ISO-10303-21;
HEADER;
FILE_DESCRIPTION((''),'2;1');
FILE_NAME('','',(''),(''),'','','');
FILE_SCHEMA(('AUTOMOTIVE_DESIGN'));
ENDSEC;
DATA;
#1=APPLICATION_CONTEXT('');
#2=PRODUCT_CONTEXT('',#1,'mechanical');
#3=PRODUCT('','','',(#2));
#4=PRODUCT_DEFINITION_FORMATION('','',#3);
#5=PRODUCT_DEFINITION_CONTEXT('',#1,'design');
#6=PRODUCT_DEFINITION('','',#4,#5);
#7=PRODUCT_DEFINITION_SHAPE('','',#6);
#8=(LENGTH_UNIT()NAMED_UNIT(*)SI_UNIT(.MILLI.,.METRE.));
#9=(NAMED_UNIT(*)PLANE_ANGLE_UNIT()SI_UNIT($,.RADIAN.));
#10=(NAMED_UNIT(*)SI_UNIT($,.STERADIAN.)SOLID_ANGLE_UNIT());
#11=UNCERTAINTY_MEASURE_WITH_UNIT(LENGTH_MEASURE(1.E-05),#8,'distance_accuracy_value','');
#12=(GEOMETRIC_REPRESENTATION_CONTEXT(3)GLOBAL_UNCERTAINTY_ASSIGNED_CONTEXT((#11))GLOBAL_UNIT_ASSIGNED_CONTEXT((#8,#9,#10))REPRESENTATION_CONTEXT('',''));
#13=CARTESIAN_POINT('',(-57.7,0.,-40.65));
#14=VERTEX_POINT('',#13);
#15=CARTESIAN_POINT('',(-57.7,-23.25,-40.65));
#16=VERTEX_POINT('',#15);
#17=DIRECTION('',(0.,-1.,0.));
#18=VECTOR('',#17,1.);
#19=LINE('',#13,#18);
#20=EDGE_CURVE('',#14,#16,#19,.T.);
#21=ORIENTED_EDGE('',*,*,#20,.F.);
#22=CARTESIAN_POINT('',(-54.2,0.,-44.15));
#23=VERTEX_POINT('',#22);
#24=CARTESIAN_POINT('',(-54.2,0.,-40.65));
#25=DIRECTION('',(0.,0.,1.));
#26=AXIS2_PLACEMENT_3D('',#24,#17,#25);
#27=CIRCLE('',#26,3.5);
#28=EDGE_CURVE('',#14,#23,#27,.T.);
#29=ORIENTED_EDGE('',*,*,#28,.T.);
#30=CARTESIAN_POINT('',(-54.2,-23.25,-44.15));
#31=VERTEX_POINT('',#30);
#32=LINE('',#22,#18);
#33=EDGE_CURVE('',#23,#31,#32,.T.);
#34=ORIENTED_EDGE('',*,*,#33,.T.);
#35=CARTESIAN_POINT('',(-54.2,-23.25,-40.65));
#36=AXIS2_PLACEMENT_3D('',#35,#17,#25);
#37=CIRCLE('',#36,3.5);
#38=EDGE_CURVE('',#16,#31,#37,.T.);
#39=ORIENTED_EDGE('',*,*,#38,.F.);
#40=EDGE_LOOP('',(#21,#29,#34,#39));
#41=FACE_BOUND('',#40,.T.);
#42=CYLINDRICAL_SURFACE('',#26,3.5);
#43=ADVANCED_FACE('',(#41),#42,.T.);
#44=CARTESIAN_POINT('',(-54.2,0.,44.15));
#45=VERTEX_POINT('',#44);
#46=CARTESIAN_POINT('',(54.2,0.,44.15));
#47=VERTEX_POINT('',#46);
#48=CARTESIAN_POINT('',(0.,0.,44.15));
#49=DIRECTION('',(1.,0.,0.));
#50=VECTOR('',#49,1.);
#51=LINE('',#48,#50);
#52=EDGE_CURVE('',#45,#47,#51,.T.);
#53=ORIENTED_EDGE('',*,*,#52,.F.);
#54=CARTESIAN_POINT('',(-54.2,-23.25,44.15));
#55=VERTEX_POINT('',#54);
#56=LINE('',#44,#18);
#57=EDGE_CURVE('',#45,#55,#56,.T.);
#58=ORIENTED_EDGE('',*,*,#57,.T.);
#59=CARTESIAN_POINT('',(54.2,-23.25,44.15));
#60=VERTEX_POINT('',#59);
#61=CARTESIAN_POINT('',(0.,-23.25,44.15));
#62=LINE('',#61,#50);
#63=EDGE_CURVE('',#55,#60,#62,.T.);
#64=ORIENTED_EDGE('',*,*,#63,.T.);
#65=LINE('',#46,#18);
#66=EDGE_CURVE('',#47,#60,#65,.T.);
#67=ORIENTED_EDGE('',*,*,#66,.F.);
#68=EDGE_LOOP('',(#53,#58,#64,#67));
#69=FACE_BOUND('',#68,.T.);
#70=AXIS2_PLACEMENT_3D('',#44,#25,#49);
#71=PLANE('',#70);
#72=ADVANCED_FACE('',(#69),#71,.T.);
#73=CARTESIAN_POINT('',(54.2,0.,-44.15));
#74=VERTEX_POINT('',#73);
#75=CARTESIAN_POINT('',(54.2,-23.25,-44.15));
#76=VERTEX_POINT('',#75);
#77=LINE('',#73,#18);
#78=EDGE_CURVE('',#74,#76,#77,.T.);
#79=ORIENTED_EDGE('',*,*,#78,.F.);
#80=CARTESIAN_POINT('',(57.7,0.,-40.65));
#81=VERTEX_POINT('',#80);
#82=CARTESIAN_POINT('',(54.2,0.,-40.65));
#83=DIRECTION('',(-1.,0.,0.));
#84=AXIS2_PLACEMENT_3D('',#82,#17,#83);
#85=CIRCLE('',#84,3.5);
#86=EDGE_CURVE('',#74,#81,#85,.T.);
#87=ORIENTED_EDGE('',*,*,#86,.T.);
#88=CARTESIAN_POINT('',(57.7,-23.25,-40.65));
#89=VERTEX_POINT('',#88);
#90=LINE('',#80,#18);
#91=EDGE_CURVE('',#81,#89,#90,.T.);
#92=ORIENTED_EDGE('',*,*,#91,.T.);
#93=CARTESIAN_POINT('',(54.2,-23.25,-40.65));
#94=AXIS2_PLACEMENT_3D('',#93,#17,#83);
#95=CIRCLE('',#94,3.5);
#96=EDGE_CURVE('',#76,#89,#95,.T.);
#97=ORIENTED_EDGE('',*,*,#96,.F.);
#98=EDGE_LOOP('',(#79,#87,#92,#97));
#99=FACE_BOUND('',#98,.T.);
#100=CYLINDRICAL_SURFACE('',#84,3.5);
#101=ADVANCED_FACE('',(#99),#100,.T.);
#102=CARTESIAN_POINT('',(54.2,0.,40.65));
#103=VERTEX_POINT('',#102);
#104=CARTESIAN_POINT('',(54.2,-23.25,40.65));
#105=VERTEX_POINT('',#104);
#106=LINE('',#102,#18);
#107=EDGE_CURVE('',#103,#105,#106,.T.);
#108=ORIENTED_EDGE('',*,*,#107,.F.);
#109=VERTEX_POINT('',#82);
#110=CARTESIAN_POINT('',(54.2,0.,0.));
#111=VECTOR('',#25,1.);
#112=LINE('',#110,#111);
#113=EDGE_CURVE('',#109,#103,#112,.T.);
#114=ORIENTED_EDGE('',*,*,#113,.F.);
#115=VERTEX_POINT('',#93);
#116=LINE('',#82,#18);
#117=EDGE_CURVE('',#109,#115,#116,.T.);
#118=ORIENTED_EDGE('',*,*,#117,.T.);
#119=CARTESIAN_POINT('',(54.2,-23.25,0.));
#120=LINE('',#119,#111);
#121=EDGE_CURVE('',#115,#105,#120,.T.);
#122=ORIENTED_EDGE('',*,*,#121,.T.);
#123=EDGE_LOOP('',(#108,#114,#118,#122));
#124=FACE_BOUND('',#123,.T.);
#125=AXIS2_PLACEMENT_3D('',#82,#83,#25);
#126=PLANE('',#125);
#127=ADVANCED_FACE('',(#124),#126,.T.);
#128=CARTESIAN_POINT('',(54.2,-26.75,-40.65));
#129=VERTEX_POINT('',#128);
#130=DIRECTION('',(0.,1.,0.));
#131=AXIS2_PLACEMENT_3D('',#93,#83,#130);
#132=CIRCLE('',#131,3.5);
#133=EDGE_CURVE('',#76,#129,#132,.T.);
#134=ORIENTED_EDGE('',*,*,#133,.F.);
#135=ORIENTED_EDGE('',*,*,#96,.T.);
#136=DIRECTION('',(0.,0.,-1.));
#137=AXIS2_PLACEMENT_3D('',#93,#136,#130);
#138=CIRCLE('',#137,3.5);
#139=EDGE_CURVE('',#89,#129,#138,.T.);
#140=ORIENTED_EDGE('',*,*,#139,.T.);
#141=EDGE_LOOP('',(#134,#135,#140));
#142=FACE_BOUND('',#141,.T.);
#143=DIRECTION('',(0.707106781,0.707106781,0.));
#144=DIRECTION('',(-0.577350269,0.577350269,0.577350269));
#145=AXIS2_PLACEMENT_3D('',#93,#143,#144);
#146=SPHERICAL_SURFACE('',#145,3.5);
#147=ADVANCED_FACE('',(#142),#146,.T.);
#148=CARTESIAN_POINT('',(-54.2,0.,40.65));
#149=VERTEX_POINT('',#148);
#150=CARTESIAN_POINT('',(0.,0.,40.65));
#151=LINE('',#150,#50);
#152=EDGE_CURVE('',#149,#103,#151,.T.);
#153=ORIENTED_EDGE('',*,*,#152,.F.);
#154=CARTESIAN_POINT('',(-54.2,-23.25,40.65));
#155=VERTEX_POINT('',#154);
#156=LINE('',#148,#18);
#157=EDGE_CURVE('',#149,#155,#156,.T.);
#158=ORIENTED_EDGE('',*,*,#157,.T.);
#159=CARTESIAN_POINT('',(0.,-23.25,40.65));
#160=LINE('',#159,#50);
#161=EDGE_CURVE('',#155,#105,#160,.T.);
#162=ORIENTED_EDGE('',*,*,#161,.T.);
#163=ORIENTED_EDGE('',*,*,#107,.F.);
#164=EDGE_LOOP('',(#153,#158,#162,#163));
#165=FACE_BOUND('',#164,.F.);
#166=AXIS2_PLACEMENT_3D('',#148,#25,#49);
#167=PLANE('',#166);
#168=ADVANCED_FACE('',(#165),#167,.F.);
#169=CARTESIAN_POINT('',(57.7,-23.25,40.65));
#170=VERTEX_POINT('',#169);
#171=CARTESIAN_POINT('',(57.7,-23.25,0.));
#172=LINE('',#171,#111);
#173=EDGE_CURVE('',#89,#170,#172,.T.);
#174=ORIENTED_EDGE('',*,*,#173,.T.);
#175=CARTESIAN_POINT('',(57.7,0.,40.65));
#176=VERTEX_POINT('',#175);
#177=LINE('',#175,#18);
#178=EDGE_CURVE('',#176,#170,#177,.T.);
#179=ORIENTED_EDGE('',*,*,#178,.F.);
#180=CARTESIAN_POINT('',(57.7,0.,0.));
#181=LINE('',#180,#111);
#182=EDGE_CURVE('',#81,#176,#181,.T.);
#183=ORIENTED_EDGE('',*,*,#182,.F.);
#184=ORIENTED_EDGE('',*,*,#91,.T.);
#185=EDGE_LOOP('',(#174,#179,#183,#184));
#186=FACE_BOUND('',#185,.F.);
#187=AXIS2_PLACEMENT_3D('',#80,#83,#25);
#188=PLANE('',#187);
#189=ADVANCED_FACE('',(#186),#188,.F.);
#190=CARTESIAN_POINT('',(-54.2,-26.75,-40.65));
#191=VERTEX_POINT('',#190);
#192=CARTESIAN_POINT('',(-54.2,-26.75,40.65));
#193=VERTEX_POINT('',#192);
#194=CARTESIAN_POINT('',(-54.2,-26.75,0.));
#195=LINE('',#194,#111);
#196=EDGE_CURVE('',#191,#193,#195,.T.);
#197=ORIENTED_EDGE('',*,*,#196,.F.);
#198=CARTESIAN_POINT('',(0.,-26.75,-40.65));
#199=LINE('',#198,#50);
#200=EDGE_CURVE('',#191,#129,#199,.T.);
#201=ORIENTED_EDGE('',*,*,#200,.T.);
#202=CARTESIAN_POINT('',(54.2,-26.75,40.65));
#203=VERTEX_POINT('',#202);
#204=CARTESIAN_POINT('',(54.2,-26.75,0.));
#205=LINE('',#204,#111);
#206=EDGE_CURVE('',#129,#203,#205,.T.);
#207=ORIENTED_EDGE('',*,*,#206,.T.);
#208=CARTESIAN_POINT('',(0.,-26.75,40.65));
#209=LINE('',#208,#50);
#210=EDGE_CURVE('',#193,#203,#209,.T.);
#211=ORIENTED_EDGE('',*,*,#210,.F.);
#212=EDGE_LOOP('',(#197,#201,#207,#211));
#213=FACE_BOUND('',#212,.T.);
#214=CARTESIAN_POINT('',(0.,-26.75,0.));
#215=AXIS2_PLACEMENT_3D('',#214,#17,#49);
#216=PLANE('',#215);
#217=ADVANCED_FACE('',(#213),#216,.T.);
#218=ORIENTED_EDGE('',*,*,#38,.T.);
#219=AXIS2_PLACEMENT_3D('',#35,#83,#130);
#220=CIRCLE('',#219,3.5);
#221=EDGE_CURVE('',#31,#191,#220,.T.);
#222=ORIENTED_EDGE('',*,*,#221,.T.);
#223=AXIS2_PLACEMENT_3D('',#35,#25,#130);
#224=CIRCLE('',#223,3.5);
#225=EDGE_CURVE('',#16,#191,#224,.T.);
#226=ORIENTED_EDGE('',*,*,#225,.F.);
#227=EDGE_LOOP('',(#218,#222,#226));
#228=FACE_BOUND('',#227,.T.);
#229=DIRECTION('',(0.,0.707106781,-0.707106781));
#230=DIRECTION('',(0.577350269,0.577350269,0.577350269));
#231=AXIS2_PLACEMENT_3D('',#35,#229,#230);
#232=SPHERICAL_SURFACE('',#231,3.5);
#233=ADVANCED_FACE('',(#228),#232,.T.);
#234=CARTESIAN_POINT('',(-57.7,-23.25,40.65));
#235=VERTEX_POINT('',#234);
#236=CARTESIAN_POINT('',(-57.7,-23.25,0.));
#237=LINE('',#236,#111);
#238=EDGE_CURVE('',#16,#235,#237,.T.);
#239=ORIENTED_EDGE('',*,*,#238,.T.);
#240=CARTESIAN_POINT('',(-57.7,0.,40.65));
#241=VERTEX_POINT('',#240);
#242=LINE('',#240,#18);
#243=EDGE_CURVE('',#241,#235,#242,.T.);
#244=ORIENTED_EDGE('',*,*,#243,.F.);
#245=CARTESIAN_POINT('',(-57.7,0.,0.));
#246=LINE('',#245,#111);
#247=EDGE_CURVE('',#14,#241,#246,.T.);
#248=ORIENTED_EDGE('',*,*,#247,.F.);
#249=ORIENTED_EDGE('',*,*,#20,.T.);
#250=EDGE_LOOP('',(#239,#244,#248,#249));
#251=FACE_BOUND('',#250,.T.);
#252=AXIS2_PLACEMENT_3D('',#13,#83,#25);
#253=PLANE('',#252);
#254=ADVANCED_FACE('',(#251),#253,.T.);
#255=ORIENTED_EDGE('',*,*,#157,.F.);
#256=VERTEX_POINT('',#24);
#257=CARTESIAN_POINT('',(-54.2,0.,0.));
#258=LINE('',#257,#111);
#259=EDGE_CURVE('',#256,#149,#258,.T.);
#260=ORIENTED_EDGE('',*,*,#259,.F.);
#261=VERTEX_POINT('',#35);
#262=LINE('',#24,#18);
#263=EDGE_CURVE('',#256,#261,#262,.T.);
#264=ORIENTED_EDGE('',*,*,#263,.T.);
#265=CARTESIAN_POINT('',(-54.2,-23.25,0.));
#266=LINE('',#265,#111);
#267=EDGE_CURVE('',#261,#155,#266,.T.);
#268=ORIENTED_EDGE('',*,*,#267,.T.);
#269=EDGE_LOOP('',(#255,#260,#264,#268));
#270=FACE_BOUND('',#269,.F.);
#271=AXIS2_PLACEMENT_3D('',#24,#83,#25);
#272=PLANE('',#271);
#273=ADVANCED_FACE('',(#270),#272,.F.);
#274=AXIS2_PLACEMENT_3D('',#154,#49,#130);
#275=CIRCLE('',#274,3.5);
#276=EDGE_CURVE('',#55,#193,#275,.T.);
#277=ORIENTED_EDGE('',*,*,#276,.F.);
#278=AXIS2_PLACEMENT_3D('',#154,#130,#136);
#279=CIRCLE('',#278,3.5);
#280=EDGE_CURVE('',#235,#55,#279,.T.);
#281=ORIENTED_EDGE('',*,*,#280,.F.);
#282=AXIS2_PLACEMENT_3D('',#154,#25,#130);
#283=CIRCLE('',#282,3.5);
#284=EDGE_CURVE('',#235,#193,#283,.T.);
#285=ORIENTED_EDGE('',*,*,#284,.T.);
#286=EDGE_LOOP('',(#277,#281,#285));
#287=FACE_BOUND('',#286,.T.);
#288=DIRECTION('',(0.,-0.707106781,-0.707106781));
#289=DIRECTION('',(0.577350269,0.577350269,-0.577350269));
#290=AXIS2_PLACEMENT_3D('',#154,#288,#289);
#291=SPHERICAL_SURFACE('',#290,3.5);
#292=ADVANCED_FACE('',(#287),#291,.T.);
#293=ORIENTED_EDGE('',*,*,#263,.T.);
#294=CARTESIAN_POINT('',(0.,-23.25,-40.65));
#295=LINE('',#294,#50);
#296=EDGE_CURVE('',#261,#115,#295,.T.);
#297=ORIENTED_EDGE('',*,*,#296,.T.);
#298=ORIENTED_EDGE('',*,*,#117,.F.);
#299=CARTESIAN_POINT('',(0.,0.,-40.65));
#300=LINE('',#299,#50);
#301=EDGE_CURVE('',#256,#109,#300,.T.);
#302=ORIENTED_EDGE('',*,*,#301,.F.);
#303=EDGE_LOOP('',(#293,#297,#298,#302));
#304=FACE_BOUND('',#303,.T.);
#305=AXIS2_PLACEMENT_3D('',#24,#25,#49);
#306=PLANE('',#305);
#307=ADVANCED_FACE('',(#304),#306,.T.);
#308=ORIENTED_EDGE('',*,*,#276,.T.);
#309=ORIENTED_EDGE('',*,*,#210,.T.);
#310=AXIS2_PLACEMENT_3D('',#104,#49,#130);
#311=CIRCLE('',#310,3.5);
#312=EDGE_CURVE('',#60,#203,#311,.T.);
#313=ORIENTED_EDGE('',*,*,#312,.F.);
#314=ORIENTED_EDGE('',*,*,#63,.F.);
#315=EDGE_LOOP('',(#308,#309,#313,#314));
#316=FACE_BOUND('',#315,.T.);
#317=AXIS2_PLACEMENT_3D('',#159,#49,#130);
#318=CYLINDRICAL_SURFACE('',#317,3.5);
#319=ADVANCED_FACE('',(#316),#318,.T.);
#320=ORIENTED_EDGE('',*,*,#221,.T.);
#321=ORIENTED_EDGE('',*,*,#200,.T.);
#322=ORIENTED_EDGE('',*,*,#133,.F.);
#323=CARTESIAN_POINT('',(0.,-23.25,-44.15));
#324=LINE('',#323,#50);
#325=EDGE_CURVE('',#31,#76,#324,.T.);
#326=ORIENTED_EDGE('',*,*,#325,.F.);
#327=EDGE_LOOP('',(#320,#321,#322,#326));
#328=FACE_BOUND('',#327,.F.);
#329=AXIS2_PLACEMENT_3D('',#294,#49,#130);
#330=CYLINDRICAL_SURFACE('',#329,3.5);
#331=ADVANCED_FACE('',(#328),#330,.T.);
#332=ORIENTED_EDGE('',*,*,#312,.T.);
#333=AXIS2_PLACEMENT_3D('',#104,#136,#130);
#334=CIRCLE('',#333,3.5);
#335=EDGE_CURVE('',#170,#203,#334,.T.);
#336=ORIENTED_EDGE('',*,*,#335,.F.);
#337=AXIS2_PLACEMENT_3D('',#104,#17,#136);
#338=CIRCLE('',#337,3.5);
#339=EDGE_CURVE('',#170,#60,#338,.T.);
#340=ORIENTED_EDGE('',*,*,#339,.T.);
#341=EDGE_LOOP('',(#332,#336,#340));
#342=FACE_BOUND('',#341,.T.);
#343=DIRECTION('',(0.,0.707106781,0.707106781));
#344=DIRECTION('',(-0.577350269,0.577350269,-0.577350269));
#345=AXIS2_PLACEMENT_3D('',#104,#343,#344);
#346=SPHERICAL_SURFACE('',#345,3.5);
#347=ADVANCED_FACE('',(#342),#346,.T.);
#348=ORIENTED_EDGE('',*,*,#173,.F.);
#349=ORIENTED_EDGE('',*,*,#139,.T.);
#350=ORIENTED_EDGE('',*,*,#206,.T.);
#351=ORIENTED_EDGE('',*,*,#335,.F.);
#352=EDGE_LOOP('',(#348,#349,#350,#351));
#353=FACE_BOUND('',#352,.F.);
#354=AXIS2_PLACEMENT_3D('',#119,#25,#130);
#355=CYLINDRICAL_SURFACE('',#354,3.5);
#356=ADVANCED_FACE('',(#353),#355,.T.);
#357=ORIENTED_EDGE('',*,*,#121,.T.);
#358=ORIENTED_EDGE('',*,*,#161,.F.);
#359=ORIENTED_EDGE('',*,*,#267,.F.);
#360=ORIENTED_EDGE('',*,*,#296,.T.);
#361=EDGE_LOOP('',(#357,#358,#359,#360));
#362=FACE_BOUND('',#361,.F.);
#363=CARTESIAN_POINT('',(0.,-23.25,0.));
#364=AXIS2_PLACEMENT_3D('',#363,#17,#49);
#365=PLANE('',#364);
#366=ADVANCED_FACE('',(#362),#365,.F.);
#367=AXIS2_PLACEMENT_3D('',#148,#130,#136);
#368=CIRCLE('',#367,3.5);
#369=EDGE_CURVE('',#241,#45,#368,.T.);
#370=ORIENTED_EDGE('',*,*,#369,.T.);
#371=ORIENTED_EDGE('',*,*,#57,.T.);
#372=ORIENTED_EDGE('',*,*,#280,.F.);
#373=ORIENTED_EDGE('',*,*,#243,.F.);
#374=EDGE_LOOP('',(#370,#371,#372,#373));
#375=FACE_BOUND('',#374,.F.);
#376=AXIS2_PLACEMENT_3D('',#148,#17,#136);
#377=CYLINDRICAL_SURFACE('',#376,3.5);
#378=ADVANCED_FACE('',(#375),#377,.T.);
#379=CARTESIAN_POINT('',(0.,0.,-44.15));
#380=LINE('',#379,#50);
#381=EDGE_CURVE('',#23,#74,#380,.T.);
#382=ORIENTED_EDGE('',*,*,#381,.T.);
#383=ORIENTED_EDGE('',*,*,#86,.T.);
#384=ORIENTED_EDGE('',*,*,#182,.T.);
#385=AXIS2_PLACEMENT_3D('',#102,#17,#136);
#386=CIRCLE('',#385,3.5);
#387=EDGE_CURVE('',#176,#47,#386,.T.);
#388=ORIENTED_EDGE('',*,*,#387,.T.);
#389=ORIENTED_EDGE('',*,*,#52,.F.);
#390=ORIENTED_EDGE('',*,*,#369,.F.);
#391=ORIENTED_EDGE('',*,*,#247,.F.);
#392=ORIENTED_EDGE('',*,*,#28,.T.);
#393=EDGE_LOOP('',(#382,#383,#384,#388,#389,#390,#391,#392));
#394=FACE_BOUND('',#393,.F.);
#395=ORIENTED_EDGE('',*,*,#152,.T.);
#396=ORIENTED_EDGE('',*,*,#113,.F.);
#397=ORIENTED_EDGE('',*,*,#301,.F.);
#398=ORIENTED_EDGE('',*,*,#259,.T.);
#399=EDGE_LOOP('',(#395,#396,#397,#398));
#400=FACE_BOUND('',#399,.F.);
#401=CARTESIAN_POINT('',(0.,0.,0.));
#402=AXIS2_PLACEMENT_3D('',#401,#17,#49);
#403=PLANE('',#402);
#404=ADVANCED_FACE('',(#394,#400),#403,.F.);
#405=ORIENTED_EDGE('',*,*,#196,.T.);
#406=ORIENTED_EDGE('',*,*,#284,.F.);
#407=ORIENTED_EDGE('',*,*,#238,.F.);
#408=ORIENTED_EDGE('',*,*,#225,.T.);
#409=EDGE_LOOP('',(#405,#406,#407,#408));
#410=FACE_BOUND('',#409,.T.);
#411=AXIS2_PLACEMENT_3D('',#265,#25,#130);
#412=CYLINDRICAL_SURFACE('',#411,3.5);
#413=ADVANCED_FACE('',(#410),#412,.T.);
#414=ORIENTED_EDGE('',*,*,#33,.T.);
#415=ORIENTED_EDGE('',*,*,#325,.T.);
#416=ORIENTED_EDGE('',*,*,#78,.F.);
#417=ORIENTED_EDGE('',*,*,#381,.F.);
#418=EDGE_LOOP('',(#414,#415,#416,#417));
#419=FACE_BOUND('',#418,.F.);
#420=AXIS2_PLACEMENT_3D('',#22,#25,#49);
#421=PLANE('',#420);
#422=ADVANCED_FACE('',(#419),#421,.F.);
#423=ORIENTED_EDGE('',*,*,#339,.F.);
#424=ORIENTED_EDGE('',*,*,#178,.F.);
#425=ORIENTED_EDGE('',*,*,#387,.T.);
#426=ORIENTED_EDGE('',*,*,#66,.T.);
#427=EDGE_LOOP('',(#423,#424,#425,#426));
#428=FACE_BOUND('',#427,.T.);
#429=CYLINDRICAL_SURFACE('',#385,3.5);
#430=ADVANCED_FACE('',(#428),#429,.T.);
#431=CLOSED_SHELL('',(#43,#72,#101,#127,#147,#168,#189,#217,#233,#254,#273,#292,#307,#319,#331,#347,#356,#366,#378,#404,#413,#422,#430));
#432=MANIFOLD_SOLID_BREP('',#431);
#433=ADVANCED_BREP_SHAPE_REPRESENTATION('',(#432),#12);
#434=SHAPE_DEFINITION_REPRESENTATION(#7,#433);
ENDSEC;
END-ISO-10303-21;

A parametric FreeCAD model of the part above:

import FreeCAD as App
import Part
import Sketcher
Q = App.Units.Quantity


def faces_at(feature, points):
    """Names of the faces that lie closest to the given points."""
    faces = feature.Shape.Faces
    near = lambda p: min(range(len(faces)), key=lambda i: faces[i].distToShape(Part.Vertex(*p))[0])
    return sorted({f"Face{near(p) + 1}" for p in points})

doc = App.newDocument("Part")
params = doc.addObject("Spreadsheet::Sheet", "Params")
for row, (alias, value) in enumerate([
    ("sketch1_width", "108.4 mm"),
    ("sketch1_height", "81.3 mm"),
    ("pad1_length", "23.25 mm"),
    ("thickness_wall", "3.5 mm"),
], start=1):
    params.set(f"A{row}", alias)
    params.set(f"B{row}", "=" + value)
    params.setAlias(f"B{row}", alias)

body = doc.addObject("PartDesign::Body", "Body")

sketch1 = body.newObject("Sketcher::SketchObject", "Sketch")
sketch1.AttachmentSupport = (doc.getObject("XZ_Plane"), [""])
sketch1.MapMode = "FlatFace"
sketch1.addGeometry(Part.LineSegment(App.Vector(-54.2, 40.65, 0), App.Vector(-54.2, -40.65, 0)), False)
sketch1.addGeometry(Part.LineSegment(App.Vector(-54.2, -40.65, 0), App.Vector(54.2, -40.65, 0)), False)
sketch1.addGeometry(Part.LineSegment(App.Vector(54.2, -40.65, 0), App.Vector(54.2, 40.65, 0)), False)
sketch1.addGeometry(Part.LineSegment(App.Vector(54.2, 40.65, 0), App.Vector(-54.2, 40.65, 0)), False)
sketch1.addConstraint(Sketcher.Constraint("Coincident", 0, 2, 1, 1))
sketch1.addConstraint(Sketcher.Constraint("Coincident", 1, 2, 2, 1))
sketch1.addConstraint(Sketcher.Constraint("Coincident", 2, 2, 3, 1))
sketch1.addConstraint(Sketcher.Constraint("Coincident", 3, 2, 0, 1))
sketch1.addConstraint(Sketcher.Constraint("Vertical", 0))
sketch1.addConstraint(Sketcher.Constraint("Horizontal", 1))
sketch1.addConstraint(Sketcher.Constraint("Vertical", 2))
sketch1.addConstraint(Sketcher.Constraint("Horizontal", 3))
sketch1.addConstraint(Sketcher.Constraint("Symmetric", 0, 2, 2, 2, -1, 1))
sketch1.addConstraint(Sketcher.Constraint("DistanceX", 1, 1, 1, 2, Q("108.4 mm")))
sketch1.addConstraint(Sketcher.Constraint("DistanceY", 0, 2, 0, 1, Q("81.3 mm")))
sketch1.setExpression("Constraints[9]", "Params.sketch1_width")
sketch1.setExpression("Constraints[10]", "Params.sketch1_height")
pad1 = body.newObject("PartDesign::Pad", "Pad")
pad1.Profile = sketch1
pad1.setExpression("Length", "Params.pad1_length")
doc.recompute()

thickness = body.newObject("PartDesign::Thickness", "Thickness")
thickness.Base = (pad1, faces_at(pad1, [(0, 0, 0)]))
thickness.setExpression("Value", "Params.thickness_wall")
thickness.Reversed = False
thickness.Join = "Arc"

doc.recompute()
